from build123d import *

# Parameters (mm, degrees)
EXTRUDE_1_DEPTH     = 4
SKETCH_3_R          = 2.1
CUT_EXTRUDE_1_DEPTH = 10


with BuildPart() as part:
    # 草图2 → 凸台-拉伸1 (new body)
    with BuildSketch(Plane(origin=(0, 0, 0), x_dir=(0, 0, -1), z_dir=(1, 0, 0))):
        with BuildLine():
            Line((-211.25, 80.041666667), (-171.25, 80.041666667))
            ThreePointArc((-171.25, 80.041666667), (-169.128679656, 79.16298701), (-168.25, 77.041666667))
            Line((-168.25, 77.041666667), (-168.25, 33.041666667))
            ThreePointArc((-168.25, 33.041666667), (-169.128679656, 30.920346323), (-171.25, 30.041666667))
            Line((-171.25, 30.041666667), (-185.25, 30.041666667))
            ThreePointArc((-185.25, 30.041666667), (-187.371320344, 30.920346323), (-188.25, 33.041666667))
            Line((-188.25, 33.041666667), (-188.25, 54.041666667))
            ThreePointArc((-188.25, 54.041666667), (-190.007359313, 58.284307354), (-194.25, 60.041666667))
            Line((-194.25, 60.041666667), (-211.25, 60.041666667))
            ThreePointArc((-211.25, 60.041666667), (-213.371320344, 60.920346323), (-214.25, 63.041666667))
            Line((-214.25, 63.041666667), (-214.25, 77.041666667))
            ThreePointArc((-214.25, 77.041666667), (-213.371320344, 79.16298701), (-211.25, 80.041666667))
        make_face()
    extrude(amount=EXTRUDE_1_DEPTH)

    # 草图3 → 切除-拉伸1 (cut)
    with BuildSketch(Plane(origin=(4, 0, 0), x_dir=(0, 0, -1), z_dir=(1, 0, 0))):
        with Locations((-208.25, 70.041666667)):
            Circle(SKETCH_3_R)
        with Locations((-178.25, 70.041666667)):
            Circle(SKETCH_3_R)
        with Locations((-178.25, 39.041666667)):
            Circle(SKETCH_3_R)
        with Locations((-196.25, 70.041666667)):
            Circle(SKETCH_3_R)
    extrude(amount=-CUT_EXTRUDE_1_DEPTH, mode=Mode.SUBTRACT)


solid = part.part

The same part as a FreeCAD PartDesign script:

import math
import FreeCAD as App
import Part
import Sketcher

V = App.Vector

doc = App.newDocument("Part")
body = doc.addObject("PartDesign::Body", "Body")

# Sketch on YZ plane
sketch1 = body.newObject("Sketcher::SketchObject", "Sketch")
sketch1.AttachmentSupport = (doc.getObject("YZ_Plane"), [""])
sketch1.MapMode = "FlatFace"
sketch1.addGeometry(Part.LineSegment(V(80, 171.2, 0), V(80, 211.2, 0)), False)
sketch1.addGeometry(Part.ArcOfCircle(Part.Circle(V(77, 211.2, 0), V(0, 0, 1), 3), math.radians(0), math.radians(90)), False)
sketch1.addGeometry(Part.LineSegment(V(77, 214.2, 0), V(63, 214.2, 0)), False)
sketch1.addGeometry(Part.ArcOfCircle(Part.Circle(V(63, 211.3, 0), V(0, 0, 1), 3), math.radians(90), math.radians(180)), False)
sketch1.addGeometry(Part.LineSegment(V(60, 211.2, 0), V(60, 194.2, 0)), False)
sketch1.addGeometry(Part.ArcOfCircle(Part.Circle(V(54, 194.2, 0), V(0, 0, 1), 6), math.radians(-90), math.radians(0)), False)
sketch1.addGeometry(Part.LineSegment(V(54, 188.2, 0), V(33, 188.2, 0)), False)
sketch1.addGeometry(Part.ArcOfCircle(Part.Circle(V(33, 185.3, 0), V(0, 0, 1), 3), math.radians(90), math.radians(180)), False)
sketch1.addGeometry(Part.LineSegment(V(30, 185.2, 0), V(30, 171.2, 0)), False)
sketch1.addGeometry(Part.ArcOfCircle(Part.Circle(V(33, 171.2, 0), V(0, 0, 1), 3), math.radians(180), math.radians(270)), False)
sketch1.addGeometry(Part.LineSegment(V(33, 168.2, 0), V(77, 168.2, 0)), False)
sketch1.addGeometry(Part.ArcOfCircle(Part.Circle(V(77, 171.2, 0), V(0, 0, 1), 3), math.radians(-90), math.radians(0)), False)
sketch1.addConstraint(Sketcher.Constraint("Tangent", 0, 2, 1, 1))
sketch1.addConstraint(Sketcher.Constraint("Tangent", 1, 2, 2, 1))
sketch1.addConstraint(Sketcher.Constraint("Tangent", 2, 2, 3, 1))
sketch1.addConstraint(Sketcher.Constraint("Tangent", 3, 2, 4, 1))
sketch1.addConstraint(Sketcher.Constraint("Tangent", 4, 2, 5, 2))
sketch1.addConstraint(Sketcher.Constraint("Tangent", 5, 1, 6, 1))
sketch1.addConstraint(Sketcher.Constraint("Tangent", 6, 2, 7, 1))
sketch1.addConstraint(Sketcher.Constraint("Tangent", 7, 2, 8, 1))
sketch1.addConstraint(Sketcher.Constraint("Tangent", 8, 2, 9, 1))
sketch1.addConstraint(Sketcher.Constraint("Tangent", 9, 2, 10, 1))
sketch1.addConstraint(Sketcher.Constraint("Tangent", 10, 2, 11, 1))
sketch1.addConstraint(Sketcher.Constraint("Tangent", 11, 2, 0, 1))
sketch1.addConstraint(Sketcher.Constraint("Vertical", 0))
sketch1.addConstraint(Sketcher.Constraint("Horizontal", 2))
sketch1.addConstraint(Sketcher.Constraint("Vertical", 4))
sketch1.addConstraint(Sketcher.Constraint("Horizontal", 6))
sketch1.addConstraint(Sketcher.Constraint("Vertical", 8))
sketch1.addConstraint(Sketcher.Constraint("Horizontal", 10))
sketch1.addConstraint(Sketcher.Constraint("Equal", 1, 3))
sketch1.addConstraint(Sketcher.Constraint("Equal", 3, 7))
sketch1.addConstraint(Sketcher.Constraint("Equal", 7, 9))
sketch1.addConstraint(Sketcher.Constraint("Equal", 9, 11))
sketch1.addConstraint(Sketcher.Constraint("Equal", 2, 8))
sketch1.addConstraint(Sketcher.Constraint("Radius", 1, 3.0))
sketch1.addConstraint(Sketcher.Constraint("Radius", 5, 6.0))
sketch1.addConstraint(Sketcher.Constraint("DistanceX", 2, 2, 2, 1, 14.0))
sketch1.addConstraint(Sketcher.Constraint("DistanceX", 6, 2, 6, 1, 21.0))
sketch1.addConstraint(Sketcher.Constraint("DistanceY", 0, 1, 0, 2, 40.0))
sketch1.addConstraint(Sketcher.Constraint("DistanceY", -1, 1, 1, 3, 211.25))
sketch1.addConstraint(Sketcher.Constraint("DistanceX", -1, 1, 1, 3, 77.041667))
pad1 = body.newObject("PartDesign::Pad", "Pad")
pad1.Profile = sketch1
pad1.Length = 4

# Sketch on YZ plane
sketch2 = body.newObject("Sketcher::SketchObject", "Sketch001")
sketch2.AttachmentSupport = (doc.getObject("YZ_Plane"), [""])
sketch2.MapMode = "FlatFace"
sketch2.AttachmentOffset = App.Placement(V(0, 0, 4), App.Rotation())
sketch2.addGeometry(Part.Circle(V(70, 208.2, 0), V(0, 0, 1), 2.1), False)
sketch2.addGeometry(Part.Circle(V(70, 178.2, 0), V(0, 0, 1), 2.1), False)
sketch2.addGeometry(Part.Circle(V(39, 178.2, 0), V(0, 0, 1), 2.1), False)
sketch2.addGeometry(Part.Circle(V(70, 196.2, 0), V(0, 0, 1), 2.1), False)
sketch2.addConstraint(Sketcher.Constraint("Equal", 0, 1))
sketch2.addConstraint(Sketcher.Constraint("Equal", 1, 2))
sketch2.addConstraint(Sketcher.Constraint("Equal", 2, 3))
sketch2.addConstraint(Sketcher.Constraint("Horizontal", 1, 3, 2, 3))
sketch2.addConstraint(Sketcher.Constraint("Vertical", 0, 3, 1, 3))
sketch2.addConstraint(Sketcher.Constraint("Vertical", 1, 3, 3, 3))
sketch2.addConstraint(Sketcher.Constraint("Diameter", 0, 4.2))
sketch2.addConstraint(Sketcher.Constraint("DistanceY", 1, 3, 0, 3, 30.0))
sketch2.addConstraint(Sketcher.Constraint("DistanceX", 2, 3, 1, 3, 31.0))
sketch2.addConstraint(Sketcher.Constraint("DistanceY", 3, 3, 0, 3, 12.0))
sketch2.addConstraint(Sketcher.Constraint("DistanceY", -1, 1, 0, 3, 208.25))
sketch2.addConstraint(Sketcher.Constraint("DistanceX", -1, 1, 0, 3, 70.041667))
pocket1 = body.newObject("PartDesign::Pocket", "Pocket")
pocket1.Profile = sketch2
pocket1.Length = 10

doc.recompute()
